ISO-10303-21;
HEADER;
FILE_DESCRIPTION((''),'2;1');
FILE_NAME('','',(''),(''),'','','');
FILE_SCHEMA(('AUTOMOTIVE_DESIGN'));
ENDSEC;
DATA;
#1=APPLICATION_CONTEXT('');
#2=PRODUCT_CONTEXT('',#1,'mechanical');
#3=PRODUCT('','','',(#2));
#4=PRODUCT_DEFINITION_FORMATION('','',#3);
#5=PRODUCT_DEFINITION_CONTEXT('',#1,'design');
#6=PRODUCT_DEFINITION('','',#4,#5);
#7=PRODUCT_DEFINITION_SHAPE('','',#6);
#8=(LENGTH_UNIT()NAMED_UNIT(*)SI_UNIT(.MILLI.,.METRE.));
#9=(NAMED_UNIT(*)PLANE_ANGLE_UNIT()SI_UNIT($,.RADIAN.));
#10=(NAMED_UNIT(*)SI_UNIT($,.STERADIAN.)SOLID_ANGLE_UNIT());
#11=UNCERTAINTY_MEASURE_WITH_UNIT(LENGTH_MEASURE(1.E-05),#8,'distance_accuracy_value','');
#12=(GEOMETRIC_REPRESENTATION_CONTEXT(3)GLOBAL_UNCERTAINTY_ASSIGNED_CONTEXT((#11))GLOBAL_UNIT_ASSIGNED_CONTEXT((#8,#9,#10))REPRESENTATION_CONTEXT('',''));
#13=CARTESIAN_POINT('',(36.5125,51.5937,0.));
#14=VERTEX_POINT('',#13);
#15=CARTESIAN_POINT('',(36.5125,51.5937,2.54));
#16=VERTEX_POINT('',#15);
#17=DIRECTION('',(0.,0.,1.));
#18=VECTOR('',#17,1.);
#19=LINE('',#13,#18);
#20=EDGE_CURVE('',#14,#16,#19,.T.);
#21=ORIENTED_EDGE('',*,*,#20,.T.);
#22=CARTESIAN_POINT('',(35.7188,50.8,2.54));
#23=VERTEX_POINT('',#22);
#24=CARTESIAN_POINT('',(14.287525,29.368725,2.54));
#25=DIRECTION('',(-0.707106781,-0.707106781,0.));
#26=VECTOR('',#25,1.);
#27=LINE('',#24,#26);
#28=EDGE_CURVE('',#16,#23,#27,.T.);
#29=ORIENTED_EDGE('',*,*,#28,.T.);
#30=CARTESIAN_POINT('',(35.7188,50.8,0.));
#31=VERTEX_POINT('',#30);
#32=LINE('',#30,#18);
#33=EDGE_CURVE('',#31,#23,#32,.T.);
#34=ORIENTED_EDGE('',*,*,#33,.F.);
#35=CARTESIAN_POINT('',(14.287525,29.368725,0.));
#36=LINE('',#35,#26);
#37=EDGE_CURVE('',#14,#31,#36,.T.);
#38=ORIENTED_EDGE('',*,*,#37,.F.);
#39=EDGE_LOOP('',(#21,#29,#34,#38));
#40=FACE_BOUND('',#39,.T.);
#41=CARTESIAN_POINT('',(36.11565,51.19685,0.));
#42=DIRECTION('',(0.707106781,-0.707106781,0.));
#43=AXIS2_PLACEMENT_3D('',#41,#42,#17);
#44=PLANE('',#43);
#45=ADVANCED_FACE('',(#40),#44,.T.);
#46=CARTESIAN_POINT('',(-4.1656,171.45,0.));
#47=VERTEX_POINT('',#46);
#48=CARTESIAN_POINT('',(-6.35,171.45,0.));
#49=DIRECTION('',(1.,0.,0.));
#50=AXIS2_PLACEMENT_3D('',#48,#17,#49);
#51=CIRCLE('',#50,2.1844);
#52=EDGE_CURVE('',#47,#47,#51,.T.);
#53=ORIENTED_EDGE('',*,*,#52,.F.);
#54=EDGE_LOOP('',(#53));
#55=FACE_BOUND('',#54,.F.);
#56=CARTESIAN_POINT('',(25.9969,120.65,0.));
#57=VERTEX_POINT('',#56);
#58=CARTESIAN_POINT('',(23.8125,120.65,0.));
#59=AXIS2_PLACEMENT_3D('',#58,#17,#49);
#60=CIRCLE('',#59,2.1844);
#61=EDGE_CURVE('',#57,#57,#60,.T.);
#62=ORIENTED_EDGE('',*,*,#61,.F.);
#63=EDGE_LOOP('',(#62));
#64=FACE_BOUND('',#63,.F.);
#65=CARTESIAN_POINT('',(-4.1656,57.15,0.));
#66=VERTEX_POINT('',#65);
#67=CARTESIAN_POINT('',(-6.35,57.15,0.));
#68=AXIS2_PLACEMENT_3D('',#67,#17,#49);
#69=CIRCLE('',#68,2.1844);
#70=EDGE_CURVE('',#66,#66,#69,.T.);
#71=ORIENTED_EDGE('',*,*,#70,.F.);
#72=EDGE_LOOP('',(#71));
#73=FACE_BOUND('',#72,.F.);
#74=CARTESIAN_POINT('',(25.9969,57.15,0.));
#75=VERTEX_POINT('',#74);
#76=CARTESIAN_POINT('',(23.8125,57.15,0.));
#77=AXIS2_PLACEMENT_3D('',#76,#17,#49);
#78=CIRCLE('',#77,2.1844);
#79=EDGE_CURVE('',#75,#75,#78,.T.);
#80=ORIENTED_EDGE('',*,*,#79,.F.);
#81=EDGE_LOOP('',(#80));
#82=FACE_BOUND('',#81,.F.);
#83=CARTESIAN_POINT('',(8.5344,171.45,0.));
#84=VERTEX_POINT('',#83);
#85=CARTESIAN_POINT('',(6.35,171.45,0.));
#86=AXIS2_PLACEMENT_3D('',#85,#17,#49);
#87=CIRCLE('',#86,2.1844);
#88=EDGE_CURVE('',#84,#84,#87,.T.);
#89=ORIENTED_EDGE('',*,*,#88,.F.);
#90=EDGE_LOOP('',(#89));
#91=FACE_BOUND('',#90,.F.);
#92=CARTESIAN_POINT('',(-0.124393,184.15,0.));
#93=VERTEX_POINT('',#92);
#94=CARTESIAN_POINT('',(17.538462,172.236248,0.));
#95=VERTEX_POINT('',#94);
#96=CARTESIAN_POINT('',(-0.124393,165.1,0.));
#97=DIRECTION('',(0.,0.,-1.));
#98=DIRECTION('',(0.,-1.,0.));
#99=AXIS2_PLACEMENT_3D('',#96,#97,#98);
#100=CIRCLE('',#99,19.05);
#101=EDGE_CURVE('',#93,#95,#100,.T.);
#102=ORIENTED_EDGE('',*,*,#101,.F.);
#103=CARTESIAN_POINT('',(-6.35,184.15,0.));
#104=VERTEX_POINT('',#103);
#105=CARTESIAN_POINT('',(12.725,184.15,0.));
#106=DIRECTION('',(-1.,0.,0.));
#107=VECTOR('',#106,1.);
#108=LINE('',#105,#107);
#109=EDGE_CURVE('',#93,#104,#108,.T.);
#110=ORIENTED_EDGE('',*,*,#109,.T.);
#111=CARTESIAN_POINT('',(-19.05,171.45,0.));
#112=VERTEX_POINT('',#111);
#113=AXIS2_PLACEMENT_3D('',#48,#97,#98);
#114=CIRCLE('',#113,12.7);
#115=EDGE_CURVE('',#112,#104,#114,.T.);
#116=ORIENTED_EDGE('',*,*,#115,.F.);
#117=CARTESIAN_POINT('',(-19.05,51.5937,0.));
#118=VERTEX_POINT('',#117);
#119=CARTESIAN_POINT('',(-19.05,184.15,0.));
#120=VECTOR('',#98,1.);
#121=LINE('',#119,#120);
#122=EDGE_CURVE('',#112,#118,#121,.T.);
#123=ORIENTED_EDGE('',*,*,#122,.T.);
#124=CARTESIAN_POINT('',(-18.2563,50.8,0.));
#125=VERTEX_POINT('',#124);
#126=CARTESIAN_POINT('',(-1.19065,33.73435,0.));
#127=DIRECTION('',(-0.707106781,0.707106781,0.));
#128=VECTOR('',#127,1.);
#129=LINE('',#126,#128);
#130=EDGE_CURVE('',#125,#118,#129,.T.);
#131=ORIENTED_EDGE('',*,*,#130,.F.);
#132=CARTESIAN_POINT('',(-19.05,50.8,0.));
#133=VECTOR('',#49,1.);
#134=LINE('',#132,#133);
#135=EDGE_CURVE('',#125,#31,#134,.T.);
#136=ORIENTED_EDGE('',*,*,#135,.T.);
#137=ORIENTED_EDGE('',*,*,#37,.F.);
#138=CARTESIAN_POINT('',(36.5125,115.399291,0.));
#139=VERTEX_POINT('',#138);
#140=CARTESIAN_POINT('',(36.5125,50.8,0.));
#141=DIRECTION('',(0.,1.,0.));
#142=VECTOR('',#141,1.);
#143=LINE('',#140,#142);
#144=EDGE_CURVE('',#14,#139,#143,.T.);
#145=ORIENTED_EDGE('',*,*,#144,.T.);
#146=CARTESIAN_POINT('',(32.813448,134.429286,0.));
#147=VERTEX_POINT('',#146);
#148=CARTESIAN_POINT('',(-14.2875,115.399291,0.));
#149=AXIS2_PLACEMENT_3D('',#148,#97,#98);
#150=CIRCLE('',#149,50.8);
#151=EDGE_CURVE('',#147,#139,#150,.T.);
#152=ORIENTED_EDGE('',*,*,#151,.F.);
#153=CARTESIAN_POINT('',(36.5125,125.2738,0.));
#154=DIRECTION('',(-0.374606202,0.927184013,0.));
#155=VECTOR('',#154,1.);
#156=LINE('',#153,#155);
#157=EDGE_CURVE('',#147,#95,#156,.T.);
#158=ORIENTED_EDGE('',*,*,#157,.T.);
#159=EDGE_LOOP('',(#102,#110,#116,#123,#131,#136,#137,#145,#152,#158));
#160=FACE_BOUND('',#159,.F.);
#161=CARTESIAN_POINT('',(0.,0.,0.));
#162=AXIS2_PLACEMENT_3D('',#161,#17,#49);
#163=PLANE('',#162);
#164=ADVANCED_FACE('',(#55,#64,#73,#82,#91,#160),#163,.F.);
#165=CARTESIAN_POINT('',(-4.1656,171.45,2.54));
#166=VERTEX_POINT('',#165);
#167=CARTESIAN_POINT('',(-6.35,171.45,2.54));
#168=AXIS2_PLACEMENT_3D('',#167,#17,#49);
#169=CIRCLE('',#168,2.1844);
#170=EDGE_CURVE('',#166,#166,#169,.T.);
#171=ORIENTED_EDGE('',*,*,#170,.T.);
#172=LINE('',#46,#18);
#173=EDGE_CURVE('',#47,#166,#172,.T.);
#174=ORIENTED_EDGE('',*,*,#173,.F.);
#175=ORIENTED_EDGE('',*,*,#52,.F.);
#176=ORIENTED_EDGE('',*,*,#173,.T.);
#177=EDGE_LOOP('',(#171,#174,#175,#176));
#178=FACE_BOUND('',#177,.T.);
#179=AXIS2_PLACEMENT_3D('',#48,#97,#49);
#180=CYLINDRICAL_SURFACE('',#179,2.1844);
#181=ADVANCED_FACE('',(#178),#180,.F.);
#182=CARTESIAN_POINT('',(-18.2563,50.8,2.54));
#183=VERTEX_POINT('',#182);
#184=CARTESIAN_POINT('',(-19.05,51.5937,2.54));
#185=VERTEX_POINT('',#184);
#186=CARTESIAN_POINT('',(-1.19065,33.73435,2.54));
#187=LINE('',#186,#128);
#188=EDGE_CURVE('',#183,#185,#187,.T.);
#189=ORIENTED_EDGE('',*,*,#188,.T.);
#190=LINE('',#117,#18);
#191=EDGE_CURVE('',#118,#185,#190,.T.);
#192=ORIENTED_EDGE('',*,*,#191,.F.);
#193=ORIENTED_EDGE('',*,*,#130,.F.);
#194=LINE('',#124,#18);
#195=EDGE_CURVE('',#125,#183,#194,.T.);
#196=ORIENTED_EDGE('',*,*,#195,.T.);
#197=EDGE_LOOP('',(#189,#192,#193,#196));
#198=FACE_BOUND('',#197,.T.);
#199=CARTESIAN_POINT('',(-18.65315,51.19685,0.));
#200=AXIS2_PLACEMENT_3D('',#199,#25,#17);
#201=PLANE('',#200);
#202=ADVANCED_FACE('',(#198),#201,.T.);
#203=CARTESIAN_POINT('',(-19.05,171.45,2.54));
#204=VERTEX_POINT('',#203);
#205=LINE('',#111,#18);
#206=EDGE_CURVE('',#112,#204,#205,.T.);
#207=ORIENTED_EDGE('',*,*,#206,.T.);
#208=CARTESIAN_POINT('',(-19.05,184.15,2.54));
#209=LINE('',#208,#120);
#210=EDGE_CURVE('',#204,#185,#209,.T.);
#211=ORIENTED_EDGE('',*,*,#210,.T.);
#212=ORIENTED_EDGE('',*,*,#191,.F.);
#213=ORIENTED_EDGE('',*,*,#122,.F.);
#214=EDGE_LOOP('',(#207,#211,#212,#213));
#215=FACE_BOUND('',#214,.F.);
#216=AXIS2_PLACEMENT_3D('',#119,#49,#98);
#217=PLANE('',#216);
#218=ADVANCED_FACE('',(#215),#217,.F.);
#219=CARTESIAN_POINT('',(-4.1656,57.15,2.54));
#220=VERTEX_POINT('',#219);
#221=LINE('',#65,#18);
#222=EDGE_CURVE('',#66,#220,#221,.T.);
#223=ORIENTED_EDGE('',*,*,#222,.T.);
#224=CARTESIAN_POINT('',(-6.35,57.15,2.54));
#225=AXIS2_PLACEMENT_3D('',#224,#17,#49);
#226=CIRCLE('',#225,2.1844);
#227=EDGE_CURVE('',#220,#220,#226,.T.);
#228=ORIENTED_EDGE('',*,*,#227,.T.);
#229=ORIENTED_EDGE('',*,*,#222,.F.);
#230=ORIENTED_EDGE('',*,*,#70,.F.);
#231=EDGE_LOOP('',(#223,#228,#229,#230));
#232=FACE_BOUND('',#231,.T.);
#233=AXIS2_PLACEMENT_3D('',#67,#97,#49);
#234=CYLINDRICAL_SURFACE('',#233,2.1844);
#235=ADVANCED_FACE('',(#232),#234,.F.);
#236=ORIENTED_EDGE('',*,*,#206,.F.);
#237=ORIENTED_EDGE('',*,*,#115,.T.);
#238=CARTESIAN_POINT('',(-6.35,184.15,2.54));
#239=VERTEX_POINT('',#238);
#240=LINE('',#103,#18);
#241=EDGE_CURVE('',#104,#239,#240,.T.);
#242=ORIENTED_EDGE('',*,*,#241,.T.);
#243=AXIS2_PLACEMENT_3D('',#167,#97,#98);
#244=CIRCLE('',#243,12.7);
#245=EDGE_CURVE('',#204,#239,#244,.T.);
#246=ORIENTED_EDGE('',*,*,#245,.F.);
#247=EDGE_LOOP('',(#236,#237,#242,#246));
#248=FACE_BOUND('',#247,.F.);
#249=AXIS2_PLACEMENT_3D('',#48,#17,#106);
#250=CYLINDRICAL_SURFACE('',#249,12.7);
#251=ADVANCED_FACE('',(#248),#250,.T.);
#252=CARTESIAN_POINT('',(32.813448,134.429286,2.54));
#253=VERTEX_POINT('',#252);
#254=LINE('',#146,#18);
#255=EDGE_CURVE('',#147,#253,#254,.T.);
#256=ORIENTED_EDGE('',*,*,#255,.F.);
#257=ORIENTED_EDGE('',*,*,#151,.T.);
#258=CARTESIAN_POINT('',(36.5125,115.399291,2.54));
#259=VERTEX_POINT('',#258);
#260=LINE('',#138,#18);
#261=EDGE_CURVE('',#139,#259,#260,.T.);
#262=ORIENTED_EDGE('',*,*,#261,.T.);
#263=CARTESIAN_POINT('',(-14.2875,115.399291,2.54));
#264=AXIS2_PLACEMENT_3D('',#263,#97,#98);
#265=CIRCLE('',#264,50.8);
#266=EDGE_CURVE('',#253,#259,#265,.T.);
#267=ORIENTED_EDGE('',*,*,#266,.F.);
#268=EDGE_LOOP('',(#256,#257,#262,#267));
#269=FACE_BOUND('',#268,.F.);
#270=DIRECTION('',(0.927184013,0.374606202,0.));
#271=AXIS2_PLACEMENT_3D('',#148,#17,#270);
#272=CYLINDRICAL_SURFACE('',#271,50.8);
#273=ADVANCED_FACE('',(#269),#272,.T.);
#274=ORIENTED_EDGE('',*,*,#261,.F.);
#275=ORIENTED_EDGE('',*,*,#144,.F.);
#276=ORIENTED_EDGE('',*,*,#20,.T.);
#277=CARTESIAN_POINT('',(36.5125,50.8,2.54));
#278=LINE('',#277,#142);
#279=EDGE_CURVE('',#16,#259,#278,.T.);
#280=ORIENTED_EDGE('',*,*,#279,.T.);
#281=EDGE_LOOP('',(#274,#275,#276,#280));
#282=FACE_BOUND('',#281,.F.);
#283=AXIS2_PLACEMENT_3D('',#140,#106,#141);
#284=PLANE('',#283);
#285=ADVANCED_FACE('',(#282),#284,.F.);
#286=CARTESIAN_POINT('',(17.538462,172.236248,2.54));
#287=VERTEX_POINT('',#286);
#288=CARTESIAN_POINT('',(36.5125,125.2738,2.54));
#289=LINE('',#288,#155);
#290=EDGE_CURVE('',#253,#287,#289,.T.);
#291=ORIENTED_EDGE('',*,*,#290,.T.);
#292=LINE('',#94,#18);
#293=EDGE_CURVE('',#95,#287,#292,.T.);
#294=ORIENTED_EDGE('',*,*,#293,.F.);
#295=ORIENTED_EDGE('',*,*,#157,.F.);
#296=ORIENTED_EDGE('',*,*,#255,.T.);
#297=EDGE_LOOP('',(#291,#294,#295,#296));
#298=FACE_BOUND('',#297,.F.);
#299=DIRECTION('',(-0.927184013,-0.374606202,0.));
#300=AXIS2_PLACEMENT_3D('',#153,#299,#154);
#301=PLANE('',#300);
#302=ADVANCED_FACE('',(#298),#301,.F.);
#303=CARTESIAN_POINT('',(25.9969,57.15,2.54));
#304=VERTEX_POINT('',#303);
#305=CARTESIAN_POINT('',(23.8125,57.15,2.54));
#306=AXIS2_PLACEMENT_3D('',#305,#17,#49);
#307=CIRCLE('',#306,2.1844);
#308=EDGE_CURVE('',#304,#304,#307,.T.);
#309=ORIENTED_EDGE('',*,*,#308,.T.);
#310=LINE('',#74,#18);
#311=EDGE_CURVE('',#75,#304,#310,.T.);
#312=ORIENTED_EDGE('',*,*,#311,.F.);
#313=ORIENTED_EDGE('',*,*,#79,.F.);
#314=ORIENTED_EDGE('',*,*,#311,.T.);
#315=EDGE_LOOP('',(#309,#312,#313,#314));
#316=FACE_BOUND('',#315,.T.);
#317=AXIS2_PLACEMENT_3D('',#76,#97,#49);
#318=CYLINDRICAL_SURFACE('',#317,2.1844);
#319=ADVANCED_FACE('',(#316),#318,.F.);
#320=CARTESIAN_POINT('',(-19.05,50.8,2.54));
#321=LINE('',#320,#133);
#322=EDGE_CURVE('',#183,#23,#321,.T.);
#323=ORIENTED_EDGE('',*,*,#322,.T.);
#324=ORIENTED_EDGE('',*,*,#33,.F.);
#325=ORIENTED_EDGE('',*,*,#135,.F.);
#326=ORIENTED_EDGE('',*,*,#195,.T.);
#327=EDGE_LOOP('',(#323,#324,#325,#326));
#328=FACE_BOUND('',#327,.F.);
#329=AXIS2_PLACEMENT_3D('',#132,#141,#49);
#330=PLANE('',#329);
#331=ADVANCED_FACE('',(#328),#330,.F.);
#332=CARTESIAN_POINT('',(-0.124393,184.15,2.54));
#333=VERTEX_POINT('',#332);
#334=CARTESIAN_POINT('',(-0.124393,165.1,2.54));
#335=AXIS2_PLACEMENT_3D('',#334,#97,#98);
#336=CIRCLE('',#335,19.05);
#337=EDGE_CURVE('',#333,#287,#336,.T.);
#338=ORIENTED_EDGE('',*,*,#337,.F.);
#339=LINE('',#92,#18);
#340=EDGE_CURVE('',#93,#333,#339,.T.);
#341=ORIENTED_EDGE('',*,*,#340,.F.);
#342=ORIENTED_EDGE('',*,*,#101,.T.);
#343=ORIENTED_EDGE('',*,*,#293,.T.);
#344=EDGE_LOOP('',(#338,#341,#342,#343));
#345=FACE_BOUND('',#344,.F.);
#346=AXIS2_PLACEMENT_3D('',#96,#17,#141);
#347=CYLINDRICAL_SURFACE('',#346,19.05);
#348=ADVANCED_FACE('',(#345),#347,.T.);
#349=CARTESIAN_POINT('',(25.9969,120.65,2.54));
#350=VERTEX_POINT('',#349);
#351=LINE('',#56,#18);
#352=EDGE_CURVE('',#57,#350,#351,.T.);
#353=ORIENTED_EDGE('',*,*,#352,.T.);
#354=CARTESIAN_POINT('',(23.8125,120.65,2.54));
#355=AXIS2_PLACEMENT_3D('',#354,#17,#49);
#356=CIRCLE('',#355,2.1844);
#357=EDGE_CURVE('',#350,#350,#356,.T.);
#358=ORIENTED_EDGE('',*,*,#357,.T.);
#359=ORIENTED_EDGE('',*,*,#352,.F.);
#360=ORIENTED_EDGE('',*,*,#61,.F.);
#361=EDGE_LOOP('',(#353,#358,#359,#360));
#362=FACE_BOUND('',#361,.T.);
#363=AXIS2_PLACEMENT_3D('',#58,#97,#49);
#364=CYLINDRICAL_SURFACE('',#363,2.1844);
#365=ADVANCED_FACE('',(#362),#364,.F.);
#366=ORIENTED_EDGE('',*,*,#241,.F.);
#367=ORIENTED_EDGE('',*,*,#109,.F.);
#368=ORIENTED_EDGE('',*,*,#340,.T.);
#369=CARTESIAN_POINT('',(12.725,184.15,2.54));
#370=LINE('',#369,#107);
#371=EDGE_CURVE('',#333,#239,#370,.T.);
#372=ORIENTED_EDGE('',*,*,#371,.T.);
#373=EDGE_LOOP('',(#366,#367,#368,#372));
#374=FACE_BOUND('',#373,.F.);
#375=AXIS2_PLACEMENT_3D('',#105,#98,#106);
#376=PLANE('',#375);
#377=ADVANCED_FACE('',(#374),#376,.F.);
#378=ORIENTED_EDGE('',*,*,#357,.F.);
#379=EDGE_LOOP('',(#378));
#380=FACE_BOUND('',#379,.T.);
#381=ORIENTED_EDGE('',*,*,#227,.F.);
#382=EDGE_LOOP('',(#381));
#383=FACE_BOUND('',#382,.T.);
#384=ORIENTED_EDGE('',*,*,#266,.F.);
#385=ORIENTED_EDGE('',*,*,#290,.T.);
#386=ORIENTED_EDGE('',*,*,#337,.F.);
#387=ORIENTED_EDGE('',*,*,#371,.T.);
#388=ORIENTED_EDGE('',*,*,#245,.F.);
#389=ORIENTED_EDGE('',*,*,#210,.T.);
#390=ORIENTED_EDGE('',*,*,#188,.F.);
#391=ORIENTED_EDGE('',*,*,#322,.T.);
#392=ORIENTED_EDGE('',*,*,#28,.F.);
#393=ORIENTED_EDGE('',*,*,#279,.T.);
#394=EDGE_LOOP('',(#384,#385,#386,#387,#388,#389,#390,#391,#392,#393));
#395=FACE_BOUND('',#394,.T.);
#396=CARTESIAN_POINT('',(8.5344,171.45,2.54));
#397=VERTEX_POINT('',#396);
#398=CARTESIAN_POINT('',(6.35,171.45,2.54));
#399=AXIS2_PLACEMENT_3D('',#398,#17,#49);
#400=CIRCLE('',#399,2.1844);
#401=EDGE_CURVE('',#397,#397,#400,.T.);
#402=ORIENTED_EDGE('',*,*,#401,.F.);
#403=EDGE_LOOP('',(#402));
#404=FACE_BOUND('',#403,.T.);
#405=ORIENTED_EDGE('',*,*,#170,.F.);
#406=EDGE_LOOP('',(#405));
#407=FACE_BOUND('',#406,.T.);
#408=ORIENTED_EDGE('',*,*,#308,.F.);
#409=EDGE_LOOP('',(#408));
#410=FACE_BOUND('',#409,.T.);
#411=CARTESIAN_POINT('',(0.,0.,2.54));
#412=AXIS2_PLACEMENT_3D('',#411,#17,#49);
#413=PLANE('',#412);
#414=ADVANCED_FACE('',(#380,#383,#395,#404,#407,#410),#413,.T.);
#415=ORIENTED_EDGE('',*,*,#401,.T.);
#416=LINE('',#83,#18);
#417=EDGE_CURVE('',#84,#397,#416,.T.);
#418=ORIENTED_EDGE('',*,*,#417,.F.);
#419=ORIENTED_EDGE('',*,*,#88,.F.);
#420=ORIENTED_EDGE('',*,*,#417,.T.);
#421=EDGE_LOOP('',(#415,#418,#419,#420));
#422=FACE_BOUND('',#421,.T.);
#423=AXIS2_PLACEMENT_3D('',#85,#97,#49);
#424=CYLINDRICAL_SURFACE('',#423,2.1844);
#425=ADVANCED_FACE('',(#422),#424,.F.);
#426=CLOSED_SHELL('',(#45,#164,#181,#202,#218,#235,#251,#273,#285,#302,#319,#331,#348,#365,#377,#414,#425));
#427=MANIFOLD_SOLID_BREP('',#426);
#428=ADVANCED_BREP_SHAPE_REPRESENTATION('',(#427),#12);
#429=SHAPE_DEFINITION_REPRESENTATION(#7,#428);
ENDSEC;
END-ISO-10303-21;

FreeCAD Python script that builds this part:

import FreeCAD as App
import Part
import Sketcher

V = App.Vector
Q = App.Units.Quantity


def edges_at(feature, points):
    """Names of the edges that pass closest to the given points."""
    edges = feature.Shape.Edges
    near = lambda p: min(range(len(edges)), key=lambda i: edges[i].distToShape(Part.Vertex(*p))[0])
    return sorted({f"Edge{near(p) + 1}" for p in points})

doc = App.newDocument("Part")
body = doc.addObject("PartDesign::Body", "Body")

sketch1 = body.newObject("Sketcher::SketchObject", "Sketch")
sketch1.AttachmentSupport = (doc.getObject("XY_Plane"), [""])
sketch1.MapMode = "FlatFace"
sketch1.addGeometry([
    Part.LineSegment(V(-19.1, 184.2, 0), V(-19.1, 50.8, 0)),
    Part.LineSegment(V(-19.1, 50.8, 0), V(36.5, 50.8, 0)),
    Part.LineSegment(V(36.5, 50.8, 0), V(36.5, 125.3, 0)),
    Part.LineSegment(V(36.5, 125.3, 0), V(12.7, 184.2, 0)),
    Part.LineSegment(V(12.7, 184.2, 0), V(-19.1, 184.2, 0)),
    Part.Circle(V(-6.3, 57.1, 0), V(0, 0, 1), 2.2),
    Part.Circle(V(23.8, 57.1, 0), V(0, 0, 1), 2.2),
    Part.Circle(V(-6.3, 171.4, 0), V(0, 0, 1), 2.2),
    Part.Circle(V(6.3, 171.4, 0), V(0, 0, 1), 2.2),
    Part.Circle(V(23.8, 120.7, 0), V(0, 0, 1), 2.2),
], False)
sketch1.addConstraint([
    Sketcher.Constraint("Coincident", 0, 2, 1, 1),
    Sketcher.Constraint("Coincident", 1, 2, 2, 1),
    Sketcher.Constraint("Coincident", 2, 2, 3, 1),
    Sketcher.Constraint("Coincident", 3, 2, 4, 1),
    Sketcher.Constraint("Coincident", 4, 2, 0, 1),
    Sketcher.Constraint("Vertical", 0),
    Sketcher.Constraint("Horizontal", 1),
    Sketcher.Constraint("Vertical", 2),
    Sketcher.Constraint("Horizontal", 4),
    Sketcher.Constraint("Equal", 5, 6),
    Sketcher.Constraint("Equal", 6, 7),
    Sketcher.Constraint("Equal", 7, 8),
    Sketcher.Constraint("Equal", 8, 9),
    Sketcher.Constraint("Symmetric", 7, 3, 8, 3, -2),
    Sketcher.Constraint("Horizontal", 5, 3, 6, 3),
    Sketcher.Constraint("Vertical", 5, 3, 7, 3),
    Sketcher.Constraint("Vertical", 6, 3, 9, 3),
    Sketcher.Constraint("Angle", 3, Q("112 deg")),
    Sketcher.Constraint("Distance", 3, Q("2.5 in")),
    Sketcher.Constraint("DistanceX", 7, 3, 8, 3, Q("0.5 in")),
    Sketcher.Constraint("DistanceY", 6, 3, 9, 3, Q("2.5 in")),
    Sketcher.Constraint("DistanceX", 0, 2, 5, 3, Q("0.5 in")),
    Sketcher.Constraint("DistanceX", 6, 3, 1, 2, Q("0.5 in")),
    Sketcher.Constraint("DistanceY", 8, 3, 3, 2, Q("0.5 in")),
    Sketcher.Constraint("DistanceY", 9, 3, 3, 2, Q("2.5 in")),
    Sketcher.Constraint("DistanceY", 0, 2, 5, 3, Q("0.25 in")),
    Sketcher.Constraint("Diameter", 5, Q("0.172 in")),
    Sketcher.Constraint("DistanceY", -1, 1, 0, 2, Q("2 in")),
    Sketcher.Constraint("DistanceX", 1, 1, 1, 2, Q("2.1875 in")),
])
pad1 = body.newObject("PartDesign::Pad", "Pad")
pad1.Profile = sketch1
pad1.Length = Q("0.1 in")
doc.recompute()

fillet = body.newObject("PartDesign::Fillet", "Fillet")
fillet.Base = (pad1, edges_at(pad1, [(-19.05, 184.15, 1.27)]))
fillet.Radius = Q("0.5 in")
doc.recompute()

fillet2 = body.newObject("PartDesign::Fillet", "Fillet001")
fillet2.Base = (fillet, edges_at(fillet, [(12.725, 184.15, 1.27)]))
fillet2.Radius = Q("0.75 in")
doc.recompute()

fillet3 = body.newObject("PartDesign::Fillet", "Fillet002")
fillet3.Base = (fillet2, edges_at(fillet2, [(36.513, 125.274, 1.27)]))
fillet3.Radius = Q("2 in")
doc.recompute()

chamfer = body.newObject("PartDesign::Chamfer", "Chamfer")
chamfer.Base = (fillet3, edges_at(fillet3, [(36.513, 50.8, 1.27), (-19.05, 50.8, 1.27)]))
chamfer.Size = Q("0.031248 in")

doc.recompute()
